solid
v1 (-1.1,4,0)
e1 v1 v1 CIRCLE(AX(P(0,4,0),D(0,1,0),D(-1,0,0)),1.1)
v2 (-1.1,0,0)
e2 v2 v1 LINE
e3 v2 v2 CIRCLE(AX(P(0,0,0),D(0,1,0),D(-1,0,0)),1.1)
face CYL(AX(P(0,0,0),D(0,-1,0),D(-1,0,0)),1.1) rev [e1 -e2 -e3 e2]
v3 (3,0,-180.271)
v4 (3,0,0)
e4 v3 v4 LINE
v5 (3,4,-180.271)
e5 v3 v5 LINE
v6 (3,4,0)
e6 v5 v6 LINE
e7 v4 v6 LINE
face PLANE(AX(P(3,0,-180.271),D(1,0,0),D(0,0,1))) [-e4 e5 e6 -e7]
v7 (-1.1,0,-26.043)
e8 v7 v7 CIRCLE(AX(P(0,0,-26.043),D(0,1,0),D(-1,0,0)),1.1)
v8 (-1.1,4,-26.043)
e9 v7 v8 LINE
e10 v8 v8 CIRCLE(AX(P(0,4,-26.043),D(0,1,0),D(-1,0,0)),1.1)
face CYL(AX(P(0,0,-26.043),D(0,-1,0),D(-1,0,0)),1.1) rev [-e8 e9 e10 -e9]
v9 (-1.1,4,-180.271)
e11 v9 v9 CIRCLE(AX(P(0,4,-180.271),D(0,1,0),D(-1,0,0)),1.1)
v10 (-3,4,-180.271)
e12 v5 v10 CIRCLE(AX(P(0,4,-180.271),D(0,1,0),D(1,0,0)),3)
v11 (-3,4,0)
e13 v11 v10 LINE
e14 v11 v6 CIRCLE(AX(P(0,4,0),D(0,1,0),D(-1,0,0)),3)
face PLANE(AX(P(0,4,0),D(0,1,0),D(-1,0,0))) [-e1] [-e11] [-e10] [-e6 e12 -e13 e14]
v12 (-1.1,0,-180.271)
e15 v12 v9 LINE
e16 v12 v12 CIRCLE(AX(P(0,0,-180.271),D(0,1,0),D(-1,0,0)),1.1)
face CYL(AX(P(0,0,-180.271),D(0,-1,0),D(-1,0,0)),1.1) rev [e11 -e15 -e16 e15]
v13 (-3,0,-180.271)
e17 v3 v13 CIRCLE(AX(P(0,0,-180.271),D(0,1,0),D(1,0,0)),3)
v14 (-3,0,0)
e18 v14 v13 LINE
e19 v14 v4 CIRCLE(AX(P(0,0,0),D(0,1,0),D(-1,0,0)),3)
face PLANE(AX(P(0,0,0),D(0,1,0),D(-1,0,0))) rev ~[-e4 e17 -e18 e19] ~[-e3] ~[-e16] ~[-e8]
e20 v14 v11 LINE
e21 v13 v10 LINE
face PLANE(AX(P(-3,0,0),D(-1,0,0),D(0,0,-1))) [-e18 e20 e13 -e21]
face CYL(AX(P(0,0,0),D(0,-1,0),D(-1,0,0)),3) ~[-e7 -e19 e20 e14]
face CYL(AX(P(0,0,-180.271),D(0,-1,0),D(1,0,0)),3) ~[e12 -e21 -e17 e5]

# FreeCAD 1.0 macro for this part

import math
import FreeCAD as App
import Part
import Sketcher
Q = App.Units.Quantity

doc = App.newDocument("Part")
body = doc.addObject("PartDesign::Body", "Body")

sketch1 = body.newObject("Sketcher::SketchObject", "Sketch")
sketch1.AttachmentSupport = (doc.getObject("XZ_Plane"), [""])
sketch1.MapMode = "FlatFace"
sketch1.addGeometry(Part.LineSegment(App.Vector(-3, -180.3, 0), App.Vector(-3, 0, 0)), False)
sketch1.addGeometry(Part.ArcOfCircle(Part.Circle(App.Vector(0, 0, 0), App.Vector(0, 0, 1), 3), math.radians(0), math.radians(180)), False)
sketch1.addGeometry(Part.LineSegment(App.Vector(3, 0, 0), App.Vector(3, -180.3, 0)), False)
sketch1.addGeometry(Part.ArcOfCircle(Part.Circle(App.Vector(0, -180.3, 0), App.Vector(0, 0, 1), 3), math.radians(180), math.radians(360)), False)
sketch1.addGeometry(Part.Circle(App.Vector(0, -180.3, 0), App.Vector(0, 0, 1), 1.1), False)
sketch1.addGeometry(Part.Circle(App.Vector(0, -26, 0), App.Vector(0, 0, 1), 1.1), False)
sketch1.addGeometry(Part.Circle(App.Vector(0, 0, 0), App.Vector(0, 0, 1), 1.1), False)
sketch1.addConstraint(Sketcher.Constraint("Tangent", 0, 2, 1, 2))
sketch1.addConstraint(Sketcher.Constraint("Tangent", 1, 1, 2, 1))
sketch1.addConstraint(Sketcher.Constraint("Tangent", 2, 2, 3, 2))
sketch1.addConstraint(Sketcher.Constraint("Tangent", 3, 1, 0, 1))
sketch1.addConstraint(Sketcher.Constraint("Vertical", 0))
sketch1.addConstraint(Sketcher.Constraint("Vertical", 2))
sketch1.addConstraint(Sketcher.Constraint("Coincident", 1, 3, -1, 1))
sketch1.addConstraint(Sketcher.Constraint("Coincident", 6, 3, -1, 1))
sketch1.addConstraint(Sketcher.Constraint("Coincident", 4, 3, 3, 3))
sketch1.addConstraint(Sketcher.Constraint("Equal", 4, 5))
sketch1.addConstraint(Sketcher.Constraint("Equal", 5, 6))
sketch1.addConstraint(Sketcher.Constraint("PointOnObject", 5, 3, -2))
sketch1.addConstraint(Sketcher.Constraint("Radius", 1, Q("3 mm")))
sketch1.addConstraint(Sketcher.Constraint("Diameter", 4, Q("2.2 mm")))
sketch1.addConstraint(Sketcher.Constraint("DistanceY", 0, 1, 0, 2, Q("180.271 mm")))
sketch1.addConstraint(Sketcher.Constraint("DistanceY", 5, 3, -1, 1, Q("26.043 mm")))
pad1 = body.newObject("PartDesign::Pad", "Pad")
pad1.Profile = sketch1
pad1.Length = 4
pad1.Reversed = True

doc.recompute()
